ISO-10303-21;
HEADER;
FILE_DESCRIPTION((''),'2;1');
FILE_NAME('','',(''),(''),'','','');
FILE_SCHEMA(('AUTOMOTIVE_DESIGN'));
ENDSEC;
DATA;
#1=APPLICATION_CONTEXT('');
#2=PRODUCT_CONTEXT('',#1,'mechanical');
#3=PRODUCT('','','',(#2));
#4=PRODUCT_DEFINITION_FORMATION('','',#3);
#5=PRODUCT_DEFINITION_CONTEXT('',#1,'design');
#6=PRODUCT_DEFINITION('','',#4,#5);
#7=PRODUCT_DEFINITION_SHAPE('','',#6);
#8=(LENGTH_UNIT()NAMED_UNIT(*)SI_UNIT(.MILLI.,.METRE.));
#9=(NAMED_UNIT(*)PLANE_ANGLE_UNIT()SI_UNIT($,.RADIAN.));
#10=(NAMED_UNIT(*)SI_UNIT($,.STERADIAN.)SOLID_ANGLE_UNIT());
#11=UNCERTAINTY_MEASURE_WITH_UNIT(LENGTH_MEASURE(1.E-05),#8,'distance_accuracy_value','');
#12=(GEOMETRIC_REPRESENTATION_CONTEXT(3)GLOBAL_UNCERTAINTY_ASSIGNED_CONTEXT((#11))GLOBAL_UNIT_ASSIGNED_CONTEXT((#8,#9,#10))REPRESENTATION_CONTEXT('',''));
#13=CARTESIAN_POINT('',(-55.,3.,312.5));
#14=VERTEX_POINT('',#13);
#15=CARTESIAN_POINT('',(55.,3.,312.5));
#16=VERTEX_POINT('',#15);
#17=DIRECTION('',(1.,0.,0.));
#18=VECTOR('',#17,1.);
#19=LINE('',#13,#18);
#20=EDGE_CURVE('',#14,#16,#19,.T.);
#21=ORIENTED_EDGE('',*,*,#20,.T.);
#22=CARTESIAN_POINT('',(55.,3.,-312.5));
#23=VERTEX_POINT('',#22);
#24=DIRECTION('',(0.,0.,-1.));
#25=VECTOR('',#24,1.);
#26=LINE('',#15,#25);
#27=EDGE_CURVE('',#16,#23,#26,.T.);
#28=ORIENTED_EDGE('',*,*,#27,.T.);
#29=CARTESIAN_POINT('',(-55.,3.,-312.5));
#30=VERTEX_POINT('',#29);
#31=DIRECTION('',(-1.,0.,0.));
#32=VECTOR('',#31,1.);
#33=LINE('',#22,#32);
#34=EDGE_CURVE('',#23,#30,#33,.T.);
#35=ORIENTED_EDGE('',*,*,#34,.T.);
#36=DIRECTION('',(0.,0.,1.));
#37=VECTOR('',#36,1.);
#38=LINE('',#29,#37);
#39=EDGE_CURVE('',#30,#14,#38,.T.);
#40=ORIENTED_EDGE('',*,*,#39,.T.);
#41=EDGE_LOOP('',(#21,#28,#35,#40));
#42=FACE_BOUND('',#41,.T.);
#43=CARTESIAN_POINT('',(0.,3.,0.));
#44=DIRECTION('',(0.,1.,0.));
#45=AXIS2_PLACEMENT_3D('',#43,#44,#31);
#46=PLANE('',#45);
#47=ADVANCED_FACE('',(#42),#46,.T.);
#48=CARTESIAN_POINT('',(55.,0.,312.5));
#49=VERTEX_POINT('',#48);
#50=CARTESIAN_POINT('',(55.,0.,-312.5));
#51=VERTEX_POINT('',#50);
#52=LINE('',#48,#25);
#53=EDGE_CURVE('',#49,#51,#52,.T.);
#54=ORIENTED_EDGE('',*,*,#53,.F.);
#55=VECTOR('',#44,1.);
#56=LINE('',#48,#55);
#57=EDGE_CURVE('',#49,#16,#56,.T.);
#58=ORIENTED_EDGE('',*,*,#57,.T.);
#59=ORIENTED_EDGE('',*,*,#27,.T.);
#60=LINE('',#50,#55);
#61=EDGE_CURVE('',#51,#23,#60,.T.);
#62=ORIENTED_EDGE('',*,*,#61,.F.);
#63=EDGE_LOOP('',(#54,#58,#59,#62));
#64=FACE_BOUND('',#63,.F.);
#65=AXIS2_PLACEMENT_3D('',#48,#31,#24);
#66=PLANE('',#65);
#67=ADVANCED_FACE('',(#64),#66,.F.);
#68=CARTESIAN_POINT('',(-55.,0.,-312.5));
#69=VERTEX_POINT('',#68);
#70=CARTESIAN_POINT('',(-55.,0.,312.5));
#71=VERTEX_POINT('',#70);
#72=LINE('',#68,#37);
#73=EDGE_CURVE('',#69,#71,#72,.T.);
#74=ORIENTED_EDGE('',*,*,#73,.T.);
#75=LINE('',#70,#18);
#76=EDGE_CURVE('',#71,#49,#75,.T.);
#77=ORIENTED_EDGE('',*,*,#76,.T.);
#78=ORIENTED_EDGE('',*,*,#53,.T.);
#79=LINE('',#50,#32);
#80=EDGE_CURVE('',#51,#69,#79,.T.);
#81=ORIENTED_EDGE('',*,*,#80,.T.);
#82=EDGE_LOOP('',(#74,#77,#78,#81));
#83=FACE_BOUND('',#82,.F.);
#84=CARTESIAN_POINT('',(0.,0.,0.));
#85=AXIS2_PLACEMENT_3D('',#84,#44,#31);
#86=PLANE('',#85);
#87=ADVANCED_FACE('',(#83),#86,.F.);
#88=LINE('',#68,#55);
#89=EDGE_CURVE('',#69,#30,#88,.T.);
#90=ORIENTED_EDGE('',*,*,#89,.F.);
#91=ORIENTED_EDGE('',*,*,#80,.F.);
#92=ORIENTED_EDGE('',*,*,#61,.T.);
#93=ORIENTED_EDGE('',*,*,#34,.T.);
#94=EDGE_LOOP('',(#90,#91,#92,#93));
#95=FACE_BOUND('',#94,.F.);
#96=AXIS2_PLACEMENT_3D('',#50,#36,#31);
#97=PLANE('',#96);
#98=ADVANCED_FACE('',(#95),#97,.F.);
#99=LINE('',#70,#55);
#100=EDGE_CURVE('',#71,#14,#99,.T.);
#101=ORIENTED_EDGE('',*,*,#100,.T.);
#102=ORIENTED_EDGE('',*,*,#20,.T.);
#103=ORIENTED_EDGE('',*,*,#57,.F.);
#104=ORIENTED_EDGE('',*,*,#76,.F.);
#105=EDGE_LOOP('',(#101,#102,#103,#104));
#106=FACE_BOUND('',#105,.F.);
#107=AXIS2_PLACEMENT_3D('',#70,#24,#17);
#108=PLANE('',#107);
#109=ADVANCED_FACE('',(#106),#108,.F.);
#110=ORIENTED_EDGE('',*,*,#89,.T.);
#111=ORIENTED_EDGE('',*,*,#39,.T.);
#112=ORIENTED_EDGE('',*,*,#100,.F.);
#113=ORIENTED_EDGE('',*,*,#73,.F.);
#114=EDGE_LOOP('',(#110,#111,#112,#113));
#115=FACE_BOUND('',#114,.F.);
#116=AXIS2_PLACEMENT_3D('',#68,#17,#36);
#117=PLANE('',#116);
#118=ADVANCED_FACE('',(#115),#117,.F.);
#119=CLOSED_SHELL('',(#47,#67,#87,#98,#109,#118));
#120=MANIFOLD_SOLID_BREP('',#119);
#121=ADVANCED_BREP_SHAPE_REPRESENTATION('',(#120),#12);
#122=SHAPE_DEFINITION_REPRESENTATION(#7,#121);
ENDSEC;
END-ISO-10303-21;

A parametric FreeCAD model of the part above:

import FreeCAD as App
import Part
import Sketcher

V = App.Vector


def add_polygon(sketch, points):
    """Adds a closed chain of lines whose ends are joined by coincident constraints."""
    first, n = sketch.GeometryCount, len(points)
    for a, b in zip(points, points[1:] + points[:1]):
        sketch.addGeometry(Part.LineSegment(App.Vector(*a, 0), App.Vector(*b, 0)), False)
    for i in range(n):
        sketch.addConstraint(Sketcher.Constraint("Coincident", first + i, 2, first + (i + 1) % n, 1))

doc = App.newDocument("Part")
body = doc.addObject("PartDesign::Body", "Body")

# Sketch on XZ plane
sketch1 = doc.addObject("Sketcher::SketchObject", "Sketch")
body.addObject(sketch1)
sketch1.AttachmentSupport = (doc.XZ_Plane, [""])
sketch1.MapMode = "FlatFace"
add_polygon(sketch1, [(-55, -312), (-55, 312), (55, 312), (55, -312)])  # lines 0-3
sketch1.addConstraint([
    Sketcher.Constraint("Vertical", 0),
    Sketcher.Constraint("Horizontal", 1),
    Sketcher.Constraint("Vertical", 2),
    Sketcher.Constraint("Horizontal", 3),
    Sketcher.Constraint("Symmetric", 0, 2, 2, 2, -1, 1),
    Sketcher.Constraint("DistanceX", 1, 1, 1, 2, 110.0),
    Sketcher.Constraint("DistanceY", 0, 1, 0, 2, 625.0),
])
pad1 = doc.addObject("PartDesign::Pad", "Pad")
body.addObject(pad1)
pad1.Profile = sketch1
pad1.Length = 3
pad1.Reversed = True

doc.recompute()
